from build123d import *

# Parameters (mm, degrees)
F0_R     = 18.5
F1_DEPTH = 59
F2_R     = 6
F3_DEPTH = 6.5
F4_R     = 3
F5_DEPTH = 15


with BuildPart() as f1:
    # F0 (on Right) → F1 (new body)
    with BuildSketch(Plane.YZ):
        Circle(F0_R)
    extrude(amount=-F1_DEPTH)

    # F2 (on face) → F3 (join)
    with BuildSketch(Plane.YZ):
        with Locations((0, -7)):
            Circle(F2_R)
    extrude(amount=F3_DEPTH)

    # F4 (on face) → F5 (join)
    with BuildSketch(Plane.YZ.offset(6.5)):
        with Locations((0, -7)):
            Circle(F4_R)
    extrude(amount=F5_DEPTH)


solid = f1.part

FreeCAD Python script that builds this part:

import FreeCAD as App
import Part
import Sketcher
Q = App.Units.Quantity

doc = App.newDocument("Part")
params = doc.addObject("Spreadsheet::Sheet", "Params")
for row, (alias, value) in enumerate([
    ("sketch1_diameter", "37 mm"),
    ("pad1_length", "59 mm"),
    ("sketch2_diameter", "12 mm"),
    ("pad2_length", "6.5 mm"),
    ("sketch3_diameter", "6 mm"),
    ("pad3_length", "15 mm"),
], start=1):
    params.set(f"A{row}", alias)
    params.set(f"B{row}", "=" + value)
    params.setAlias(f"B{row}", alias)

body = doc.addObject("PartDesign::Body", "Body")

# Sketch on YZ plane
sketch1 = body.newObject("Sketcher::SketchObject", "Sketch")
sketch1.AttachmentSupport = (doc.getObject("YZ_Plane"), [""])
sketch1.MapMode = "FlatFace"
sketch1.addGeometry(Part.Circle(App.Vector(0, 0, 0), App.Vector(0, 0, 1), 18.5), False)
sketch1.addConstraint([
    Sketcher.Constraint("Coincident", 0, 3, -1, 1),
    Sketcher.Constraint("Diameter", 0, Q("37 mm")),
])
sketch1.setExpression("Constraints[1]", "Params.sketch1_diameter")
pad1 = body.newObject("PartDesign::Pad", "Pad")
pad1.Profile = sketch1
pad1.setExpression("Length", "Params.pad1_length")
pad1.Reversed = True

# Sketch on YZ plane
sketch2 = body.newObject("Sketcher::SketchObject", "Sketch001")
sketch2.AttachmentSupport = (doc.getObject("YZ_Plane"), [""])
sketch2.MapMode = "FlatFace"
sketch2.addGeometry(Part.Circle(App.Vector(0, -7, 0), App.Vector(0, 0, 1), 6), False)
sketch2.addConstraint([
    Sketcher.Constraint("PointOnObject", 0, 3, -2),
    Sketcher.Constraint("Diameter", 0, Q("12 mm")),
    Sketcher.Constraint("DistanceY", 0, 3, -1, 1, Q("7 mm")),
])
sketch2.setExpression("Constraints[1]", "Params.sketch2_diameter")
pad2 = body.newObject("PartDesign::Pad", "Pad001")
pad2.Profile = sketch2
pad2.setExpression("Length", "Params.pad2_length")

# Sketch on YZ plane
sketch3 = body.newObject("Sketcher::SketchObject", "Sketch002")
sketch3.AttachmentSupport = (doc.getObject("YZ_Plane"), [""])
sketch3.MapMode = "FlatFace"
sketch3.AttachmentOffset = App.Placement(App.Vector(0, 0, 6.5), App.Rotation())
sketch3.addGeometry(Part.Circle(App.Vector(0, -7, 0), App.Vector(0, 0, 1), 3), False)
sketch3.addConstraint([
    Sketcher.Constraint("PointOnObject", 0, 3, -2),
    Sketcher.Constraint("Diameter", 0, Q("6 mm")),
    Sketcher.Constraint("DistanceY", 0, 3, -1, 1, Q("7 mm")),
])
sketch3.setExpression("Constraints[1]", "Params.sketch3_diameter")
pad3 = body.newObject("PartDesign::Pad", "Pad002")
pad3.Profile = sketch3
pad3.setExpression("Length", "Params.pad3_length")

doc.recompute()
